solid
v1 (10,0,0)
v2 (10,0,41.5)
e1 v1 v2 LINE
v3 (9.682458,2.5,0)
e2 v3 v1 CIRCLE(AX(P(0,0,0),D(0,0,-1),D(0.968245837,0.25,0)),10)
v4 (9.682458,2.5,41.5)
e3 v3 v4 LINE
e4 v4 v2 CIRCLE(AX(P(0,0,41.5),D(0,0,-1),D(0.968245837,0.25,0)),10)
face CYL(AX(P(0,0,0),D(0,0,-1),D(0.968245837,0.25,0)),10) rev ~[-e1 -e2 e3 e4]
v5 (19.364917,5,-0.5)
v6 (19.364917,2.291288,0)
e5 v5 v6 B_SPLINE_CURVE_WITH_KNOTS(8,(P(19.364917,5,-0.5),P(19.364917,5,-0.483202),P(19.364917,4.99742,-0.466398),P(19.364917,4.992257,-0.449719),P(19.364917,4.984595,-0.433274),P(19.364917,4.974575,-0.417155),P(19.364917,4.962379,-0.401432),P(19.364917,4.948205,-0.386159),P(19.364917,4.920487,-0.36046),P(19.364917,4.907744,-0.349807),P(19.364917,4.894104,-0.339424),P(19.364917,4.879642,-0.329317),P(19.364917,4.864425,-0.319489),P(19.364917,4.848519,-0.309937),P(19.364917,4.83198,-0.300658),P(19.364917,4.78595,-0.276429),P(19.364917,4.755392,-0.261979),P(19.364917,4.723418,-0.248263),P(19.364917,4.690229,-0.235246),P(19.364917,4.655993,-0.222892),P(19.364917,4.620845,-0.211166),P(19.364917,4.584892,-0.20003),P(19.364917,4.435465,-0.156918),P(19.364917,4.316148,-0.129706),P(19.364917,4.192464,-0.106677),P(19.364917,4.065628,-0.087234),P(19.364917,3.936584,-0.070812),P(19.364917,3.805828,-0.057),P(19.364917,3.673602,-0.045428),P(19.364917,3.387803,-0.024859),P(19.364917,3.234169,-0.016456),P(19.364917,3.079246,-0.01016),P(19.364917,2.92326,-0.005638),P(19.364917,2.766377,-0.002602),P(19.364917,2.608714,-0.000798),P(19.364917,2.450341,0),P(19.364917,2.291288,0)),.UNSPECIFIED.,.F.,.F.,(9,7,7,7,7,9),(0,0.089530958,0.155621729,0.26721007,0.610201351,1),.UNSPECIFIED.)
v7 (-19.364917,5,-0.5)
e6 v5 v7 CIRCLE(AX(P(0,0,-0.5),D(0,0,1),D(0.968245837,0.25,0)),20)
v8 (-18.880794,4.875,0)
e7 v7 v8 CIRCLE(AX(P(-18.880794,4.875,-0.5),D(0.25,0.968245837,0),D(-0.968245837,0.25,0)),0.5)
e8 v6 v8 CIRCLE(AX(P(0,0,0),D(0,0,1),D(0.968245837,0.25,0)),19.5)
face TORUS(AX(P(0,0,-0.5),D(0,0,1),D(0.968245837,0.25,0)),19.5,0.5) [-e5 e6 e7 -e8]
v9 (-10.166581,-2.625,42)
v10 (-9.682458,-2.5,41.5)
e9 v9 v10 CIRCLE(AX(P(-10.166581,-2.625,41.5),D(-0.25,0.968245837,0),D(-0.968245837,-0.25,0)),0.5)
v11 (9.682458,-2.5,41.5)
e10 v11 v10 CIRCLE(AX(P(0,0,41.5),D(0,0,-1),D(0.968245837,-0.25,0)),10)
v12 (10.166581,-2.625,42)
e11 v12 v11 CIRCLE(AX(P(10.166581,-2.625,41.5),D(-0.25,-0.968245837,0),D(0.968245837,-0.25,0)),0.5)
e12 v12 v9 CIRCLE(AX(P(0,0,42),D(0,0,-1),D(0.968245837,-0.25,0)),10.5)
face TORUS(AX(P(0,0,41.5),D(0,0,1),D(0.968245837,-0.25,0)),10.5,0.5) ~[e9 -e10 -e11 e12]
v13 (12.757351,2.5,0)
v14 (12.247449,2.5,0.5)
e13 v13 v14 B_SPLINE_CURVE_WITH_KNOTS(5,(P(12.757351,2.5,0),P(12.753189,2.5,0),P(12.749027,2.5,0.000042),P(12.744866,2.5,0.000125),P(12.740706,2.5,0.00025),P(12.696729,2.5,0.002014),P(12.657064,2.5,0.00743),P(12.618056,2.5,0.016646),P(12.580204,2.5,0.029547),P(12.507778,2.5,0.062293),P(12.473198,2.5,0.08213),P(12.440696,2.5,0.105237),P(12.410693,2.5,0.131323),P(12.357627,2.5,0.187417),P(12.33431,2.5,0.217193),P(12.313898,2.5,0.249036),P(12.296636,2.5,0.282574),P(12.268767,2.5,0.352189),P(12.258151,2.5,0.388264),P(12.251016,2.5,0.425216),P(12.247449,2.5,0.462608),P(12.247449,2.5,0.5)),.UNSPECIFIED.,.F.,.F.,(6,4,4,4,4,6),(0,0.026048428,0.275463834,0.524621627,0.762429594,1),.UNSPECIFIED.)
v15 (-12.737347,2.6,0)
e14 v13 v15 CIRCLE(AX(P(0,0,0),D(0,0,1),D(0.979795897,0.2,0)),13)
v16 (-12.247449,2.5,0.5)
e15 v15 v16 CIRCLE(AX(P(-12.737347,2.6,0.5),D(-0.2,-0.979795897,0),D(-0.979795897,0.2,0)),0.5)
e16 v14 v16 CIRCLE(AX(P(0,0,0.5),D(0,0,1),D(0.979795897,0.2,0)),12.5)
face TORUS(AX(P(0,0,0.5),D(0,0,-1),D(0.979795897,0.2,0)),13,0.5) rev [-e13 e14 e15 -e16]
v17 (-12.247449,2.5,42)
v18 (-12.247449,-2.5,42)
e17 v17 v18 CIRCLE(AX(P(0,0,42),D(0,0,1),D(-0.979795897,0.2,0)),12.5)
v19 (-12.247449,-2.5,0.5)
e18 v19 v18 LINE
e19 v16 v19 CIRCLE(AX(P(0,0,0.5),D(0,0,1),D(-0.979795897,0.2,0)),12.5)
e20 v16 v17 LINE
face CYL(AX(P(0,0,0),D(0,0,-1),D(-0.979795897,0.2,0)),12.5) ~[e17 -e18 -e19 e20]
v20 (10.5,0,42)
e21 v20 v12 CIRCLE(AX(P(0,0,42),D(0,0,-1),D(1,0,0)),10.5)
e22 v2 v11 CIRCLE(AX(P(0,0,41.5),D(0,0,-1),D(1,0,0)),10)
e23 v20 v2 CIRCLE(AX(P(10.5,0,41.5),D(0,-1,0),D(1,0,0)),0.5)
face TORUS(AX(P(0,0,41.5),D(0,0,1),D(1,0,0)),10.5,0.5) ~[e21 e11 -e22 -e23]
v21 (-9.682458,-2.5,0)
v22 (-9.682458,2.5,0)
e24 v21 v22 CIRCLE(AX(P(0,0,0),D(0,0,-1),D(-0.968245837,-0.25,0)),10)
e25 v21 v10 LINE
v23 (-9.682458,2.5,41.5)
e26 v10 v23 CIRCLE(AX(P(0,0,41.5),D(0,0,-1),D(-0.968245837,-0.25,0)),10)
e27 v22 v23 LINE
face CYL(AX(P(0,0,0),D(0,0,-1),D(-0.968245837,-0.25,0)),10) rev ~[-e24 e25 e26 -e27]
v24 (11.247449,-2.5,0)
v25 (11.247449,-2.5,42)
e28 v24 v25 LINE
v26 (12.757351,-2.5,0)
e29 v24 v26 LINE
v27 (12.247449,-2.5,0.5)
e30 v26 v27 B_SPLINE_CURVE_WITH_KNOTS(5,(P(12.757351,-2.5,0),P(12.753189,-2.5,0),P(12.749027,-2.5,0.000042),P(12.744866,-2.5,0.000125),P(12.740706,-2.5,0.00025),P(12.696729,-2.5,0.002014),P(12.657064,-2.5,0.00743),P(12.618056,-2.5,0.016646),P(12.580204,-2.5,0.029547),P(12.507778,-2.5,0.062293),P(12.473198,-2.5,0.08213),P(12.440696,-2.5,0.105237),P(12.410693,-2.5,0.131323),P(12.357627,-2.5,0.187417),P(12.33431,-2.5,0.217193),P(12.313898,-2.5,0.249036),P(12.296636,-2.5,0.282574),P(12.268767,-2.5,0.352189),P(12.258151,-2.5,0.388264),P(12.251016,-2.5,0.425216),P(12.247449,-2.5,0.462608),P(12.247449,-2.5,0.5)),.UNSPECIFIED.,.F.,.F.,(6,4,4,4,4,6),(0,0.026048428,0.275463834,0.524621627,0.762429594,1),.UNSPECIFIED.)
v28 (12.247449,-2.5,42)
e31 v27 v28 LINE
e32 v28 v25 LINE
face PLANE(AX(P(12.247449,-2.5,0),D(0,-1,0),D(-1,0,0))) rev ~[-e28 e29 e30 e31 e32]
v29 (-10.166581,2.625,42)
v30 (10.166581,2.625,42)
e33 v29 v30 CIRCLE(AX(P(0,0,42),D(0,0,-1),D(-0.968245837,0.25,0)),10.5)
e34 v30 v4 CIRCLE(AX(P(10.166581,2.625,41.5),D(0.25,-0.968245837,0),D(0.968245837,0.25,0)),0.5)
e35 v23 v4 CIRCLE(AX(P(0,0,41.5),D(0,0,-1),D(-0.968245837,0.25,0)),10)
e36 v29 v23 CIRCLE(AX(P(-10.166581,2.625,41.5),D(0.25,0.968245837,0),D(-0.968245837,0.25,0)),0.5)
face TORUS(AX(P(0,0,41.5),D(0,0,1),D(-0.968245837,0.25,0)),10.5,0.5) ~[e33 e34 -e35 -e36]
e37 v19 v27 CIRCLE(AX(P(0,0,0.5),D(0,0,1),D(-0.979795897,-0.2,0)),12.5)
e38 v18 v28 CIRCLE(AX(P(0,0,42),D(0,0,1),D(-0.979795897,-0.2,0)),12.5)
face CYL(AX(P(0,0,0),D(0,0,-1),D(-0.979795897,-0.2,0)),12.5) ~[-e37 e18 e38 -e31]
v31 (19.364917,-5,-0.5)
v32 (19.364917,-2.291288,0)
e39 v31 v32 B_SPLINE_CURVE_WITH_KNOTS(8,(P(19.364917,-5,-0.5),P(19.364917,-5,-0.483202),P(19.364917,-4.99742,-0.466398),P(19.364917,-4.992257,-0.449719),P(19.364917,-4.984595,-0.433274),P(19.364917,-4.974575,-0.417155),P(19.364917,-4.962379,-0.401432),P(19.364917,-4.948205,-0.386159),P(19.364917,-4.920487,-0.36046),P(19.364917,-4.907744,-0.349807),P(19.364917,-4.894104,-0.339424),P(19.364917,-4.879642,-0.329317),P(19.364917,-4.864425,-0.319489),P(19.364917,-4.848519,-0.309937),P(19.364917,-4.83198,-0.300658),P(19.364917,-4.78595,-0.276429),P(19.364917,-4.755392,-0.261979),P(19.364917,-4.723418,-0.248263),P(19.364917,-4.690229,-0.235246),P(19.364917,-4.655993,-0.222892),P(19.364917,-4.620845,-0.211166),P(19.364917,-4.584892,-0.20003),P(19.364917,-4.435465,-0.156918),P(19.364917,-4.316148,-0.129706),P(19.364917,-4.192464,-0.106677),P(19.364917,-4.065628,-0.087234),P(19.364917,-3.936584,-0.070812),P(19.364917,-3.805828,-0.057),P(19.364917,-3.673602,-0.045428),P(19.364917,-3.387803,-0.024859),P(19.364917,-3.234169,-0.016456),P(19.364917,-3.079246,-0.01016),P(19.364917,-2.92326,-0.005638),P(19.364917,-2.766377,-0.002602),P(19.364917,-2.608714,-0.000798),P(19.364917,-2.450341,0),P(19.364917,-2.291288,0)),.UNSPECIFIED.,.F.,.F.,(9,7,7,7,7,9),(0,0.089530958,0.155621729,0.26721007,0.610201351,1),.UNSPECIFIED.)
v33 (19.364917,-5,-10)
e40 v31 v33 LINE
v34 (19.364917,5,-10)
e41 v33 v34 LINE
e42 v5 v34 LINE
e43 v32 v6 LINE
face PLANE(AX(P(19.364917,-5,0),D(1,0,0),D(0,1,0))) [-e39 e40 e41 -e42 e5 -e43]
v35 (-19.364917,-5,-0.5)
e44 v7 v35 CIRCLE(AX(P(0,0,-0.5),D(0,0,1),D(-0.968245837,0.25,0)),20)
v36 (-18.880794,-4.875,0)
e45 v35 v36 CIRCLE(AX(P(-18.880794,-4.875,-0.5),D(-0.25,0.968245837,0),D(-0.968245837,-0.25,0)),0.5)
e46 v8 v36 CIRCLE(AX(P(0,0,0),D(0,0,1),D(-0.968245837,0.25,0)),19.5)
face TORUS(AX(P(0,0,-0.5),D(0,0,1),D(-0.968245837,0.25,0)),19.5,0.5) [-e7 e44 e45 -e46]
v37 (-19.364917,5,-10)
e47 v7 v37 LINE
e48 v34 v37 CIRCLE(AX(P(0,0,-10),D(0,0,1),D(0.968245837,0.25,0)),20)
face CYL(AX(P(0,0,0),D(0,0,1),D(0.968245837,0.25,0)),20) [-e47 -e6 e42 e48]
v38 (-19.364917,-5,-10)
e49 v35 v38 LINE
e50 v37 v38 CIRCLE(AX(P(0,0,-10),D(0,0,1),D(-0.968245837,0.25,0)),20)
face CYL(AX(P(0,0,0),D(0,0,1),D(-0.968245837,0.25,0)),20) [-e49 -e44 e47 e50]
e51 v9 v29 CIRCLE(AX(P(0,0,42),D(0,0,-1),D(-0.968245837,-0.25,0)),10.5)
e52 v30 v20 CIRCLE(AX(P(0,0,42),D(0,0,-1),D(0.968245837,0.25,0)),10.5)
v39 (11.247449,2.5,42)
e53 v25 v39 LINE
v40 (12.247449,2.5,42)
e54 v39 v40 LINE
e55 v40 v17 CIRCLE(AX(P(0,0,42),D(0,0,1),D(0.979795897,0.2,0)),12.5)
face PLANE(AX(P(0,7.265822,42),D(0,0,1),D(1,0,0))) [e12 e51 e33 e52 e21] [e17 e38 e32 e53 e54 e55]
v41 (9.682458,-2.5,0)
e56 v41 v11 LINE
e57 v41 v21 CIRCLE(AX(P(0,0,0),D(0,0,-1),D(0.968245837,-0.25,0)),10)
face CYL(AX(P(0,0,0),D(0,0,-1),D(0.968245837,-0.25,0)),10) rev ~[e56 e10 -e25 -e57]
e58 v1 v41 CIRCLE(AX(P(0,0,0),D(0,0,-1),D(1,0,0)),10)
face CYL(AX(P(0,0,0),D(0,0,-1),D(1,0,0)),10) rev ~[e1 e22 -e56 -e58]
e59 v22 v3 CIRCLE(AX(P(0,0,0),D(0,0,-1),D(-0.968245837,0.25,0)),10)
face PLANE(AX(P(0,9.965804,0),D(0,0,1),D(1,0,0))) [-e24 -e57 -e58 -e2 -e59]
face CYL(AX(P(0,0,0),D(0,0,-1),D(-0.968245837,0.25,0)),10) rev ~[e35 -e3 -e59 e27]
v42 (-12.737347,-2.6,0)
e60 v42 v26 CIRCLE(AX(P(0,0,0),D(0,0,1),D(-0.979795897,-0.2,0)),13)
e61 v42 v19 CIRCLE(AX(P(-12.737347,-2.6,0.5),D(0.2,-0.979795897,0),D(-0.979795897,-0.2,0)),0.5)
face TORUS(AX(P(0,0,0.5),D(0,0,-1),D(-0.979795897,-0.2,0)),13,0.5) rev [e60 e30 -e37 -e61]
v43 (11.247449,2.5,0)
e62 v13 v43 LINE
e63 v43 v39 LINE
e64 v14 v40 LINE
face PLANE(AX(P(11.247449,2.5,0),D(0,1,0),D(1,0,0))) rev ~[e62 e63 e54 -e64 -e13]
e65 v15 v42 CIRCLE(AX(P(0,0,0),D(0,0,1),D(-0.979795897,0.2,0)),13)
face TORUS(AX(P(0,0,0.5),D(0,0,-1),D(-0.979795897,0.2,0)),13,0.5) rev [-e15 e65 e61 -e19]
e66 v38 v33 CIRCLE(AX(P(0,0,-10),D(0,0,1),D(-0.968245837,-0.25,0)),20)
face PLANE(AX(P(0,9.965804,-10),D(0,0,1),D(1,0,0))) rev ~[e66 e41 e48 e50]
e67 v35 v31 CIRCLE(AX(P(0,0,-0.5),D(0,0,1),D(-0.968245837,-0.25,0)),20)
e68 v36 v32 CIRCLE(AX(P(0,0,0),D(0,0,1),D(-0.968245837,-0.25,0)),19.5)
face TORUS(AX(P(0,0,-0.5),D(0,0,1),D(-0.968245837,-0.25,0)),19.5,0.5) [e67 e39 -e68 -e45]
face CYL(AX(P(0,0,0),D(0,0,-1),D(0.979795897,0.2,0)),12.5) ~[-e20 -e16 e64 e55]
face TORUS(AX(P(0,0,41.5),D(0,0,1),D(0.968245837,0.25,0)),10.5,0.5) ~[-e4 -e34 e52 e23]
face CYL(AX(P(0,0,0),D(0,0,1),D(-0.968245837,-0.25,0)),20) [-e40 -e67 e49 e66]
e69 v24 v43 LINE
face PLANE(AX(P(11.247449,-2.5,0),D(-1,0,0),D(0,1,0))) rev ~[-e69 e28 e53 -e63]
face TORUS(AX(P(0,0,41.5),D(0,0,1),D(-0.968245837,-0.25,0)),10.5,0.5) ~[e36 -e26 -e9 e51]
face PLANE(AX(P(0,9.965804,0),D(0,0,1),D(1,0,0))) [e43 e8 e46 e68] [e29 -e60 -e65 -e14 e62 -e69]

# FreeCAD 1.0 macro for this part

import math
import FreeCAD as App
import Part
import Sketcher
from FreeCAD import Vector


def edges_at(feature, points):
    """Names of the edges that pass closest to the given points."""
    edges = feature.Shape.Edges
    near = lambda p: min(range(len(edges)), key=lambda i: edges[i].distToShape(Part.Vertex(*p))[0])
    return sorted({f"Edge{near(p) + 1}" for p in points})

doc = App.newDocument("Part")
body = doc.addObject("PartDesign::Body", "Body")

sketch1 = body.newObject("Sketcher::SketchObject", "Sketch")
sketch1.AttachmentSupport = (doc.getObject("XY_Plane"), [""])
sketch1.MapMode = "FlatFace"
sketch1.addGeometry([
    Part.ArcOfCircle(Part.Circle(Vector(0, 0, 0), Vector(0, 0, 1), 20), math.radians(14.477512), math.radians(165.522488)),
    Part.ArcOfCircle(Part.Circle(Vector(0, 0, 0), Vector(0, 0, 1), 20), math.radians(165.522488), math.radians(194.477512)),
    Part.ArcOfCircle(Part.Circle(Vector(0, 0, 0), Vector(0, 0, 1), 20), math.radians(-165.522488), math.radians(-14.477512)),
    Part.LineSegment(Vector(19.364917, -5, 0), Vector(19.364917, 5, 0)),
], False)
sketch1.addConstraint([
    Sketcher.Constraint("Tangent", 0, 2, 1, 1),
    Sketcher.Constraint("Tangent", 1, 2, 2, 1),
    Sketcher.Constraint("Coincident", 2, 2, 3, 1),
    Sketcher.Constraint("Coincident", 3, 2, 0, 1),
    Sketcher.Constraint("Vertical", 3),
    Sketcher.Constraint("Coincident", 0, 3, -1, 1),
    Sketcher.Constraint("Coincident", 2, 3, -1, 1),
    Sketcher.Constraint("Horizontal", 1, 2, 2, 2),
    Sketcher.Constraint("Horizontal", 0, 2, 3, 2),
    Sketcher.Constraint("Radius", 0, 20.0),
    Sketcher.Constraint("DistanceY", 3, 1, 3, 2, 10.0),
])
pad1 = body.newObject("PartDesign::Pad", "Pad")
pad1.Profile = sketch1
pad1.Length = 10
pad1.Reversed = True

sketch2 = body.newObject("Sketcher::SketchObject", "Sketch001")
sketch2.AttachmentSupport = (doc.getObject("XY_Plane"), [""])
sketch2.MapMode = "FlatFace"
sketch2.addGeometry([
    Part.ArcOfCircle(Part.Circle(Vector(0, 0, 0), Vector(0, 0, 1), 12.5), math.radians(11.536959), math.radians(168.463041)),
    Part.ArcOfCircle(Part.Circle(Vector(0, 0, 0), Vector(0, 0, 1), 12.5), math.radians(168.463041), math.radians(191.536959)),
    Part.ArcOfCircle(Part.Circle(Vector(0, 0, 0), Vector(0, 0, 1), 12.5), math.radians(-168.463041), math.radians(-11.536959)),
    Part.LineSegment(Vector(12.247449, -2.5, 0), Vector(11.247449, -2.5, 0)),
    Part.LineSegment(Vector(11.247449, -2.5, 0), Vector(11.247449, 2.5, 0)),
    Part.LineSegment(Vector(11.247449, 2.5, 0), Vector(12.247449, 2.5, 0)),
    Part.ArcOfCircle(Part.Circle(Vector(0, 0, 0), Vector(0, 0, 1), 10), math.radians(14.477512), math.radians(165.522488)),
    Part.ArcOfCircle(Part.Circle(Vector(0, 0, 0), Vector(0, 0, 1), 10), math.radians(0), math.radians(14.477512)),
    Part.ArcOfCircle(Part.Circle(Vector(0, 0, 0), Vector(0, 0, 1), 10), math.radians(-14.477512), math.radians(0)),
    Part.ArcOfCircle(Part.Circle(Vector(0, 0, 0), Vector(0, 0, 1), 10), math.radians(-165.522488), math.radians(-14.477512)),
    Part.ArcOfCircle(Part.Circle(Vector(0, 0, 0), Vector(0, 0, 1), 10), math.radians(165.522488), math.radians(194.477512)),
], False)
sketch2.addConstraint([
    Sketcher.Constraint("Tangent", 0, 2, 1, 1),
    Sketcher.Constraint("Tangent", 1, 2, 2, 1),
    Sketcher.Constraint("Coincident", 2, 2, 3, 1),
    Sketcher.Constraint("Coincident", 3, 2, 4, 1),
    Sketcher.Constraint("Coincident", 4, 2, 5, 1),
    Sketcher.Constraint("Coincident", 5, 2, 0, 1),
    Sketcher.Constraint("Tangent", 6, 1, 7, 2),
    Sketcher.Constraint("Tangent", 7, 1, 8, 2),
    Sketcher.Constraint("Tangent", 8, 1, 9, 2),
    Sketcher.Constraint("Tangent", 9, 1, 10, 2),
    Sketcher.Constraint("Tangent", 10, 1, 6, 2),
    Sketcher.Constraint("Horizontal", 3),
    Sketcher.Constraint("Vertical", 4),
    Sketcher.Constraint("Horizontal", 5),
    Sketcher.Constraint("Coincident", 0, 3, -1, 1),
    Sketcher.Constraint("Coincident", 2, 3, -1, 1),
    Sketcher.Constraint("Coincident", 6, 3, -1, 1),
    Sketcher.Constraint("Coincident", 8, 3, -1, 1),
    Sketcher.Constraint("PointOnObject", 7, 1, -1),
    Sketcher.Constraint("Horizontal", 1, 2, 2, 2),
    Sketcher.Constraint("Horizontal", 0, 2, 4, 2),
    Sketcher.Constraint("Horizontal", 5, 2, 6, 1),
    Sketcher.Constraint("Horizontal", 3, 2, 8, 1),
    Sketcher.Constraint("Horizontal", 8, 1, 9, 1),
    Sketcher.Constraint("Horizontal", 6, 1, 10, 1),
    Sketcher.Constraint("Vertical", 0, 2, 1, 2),
    Sketcher.Constraint("Radius", 6, 10.0),
    Sketcher.Constraint("Radius", 0, 12.5),
    Sketcher.Constraint("DistanceX", 3, 2, 3, 1, 1.0),
    Sketcher.Constraint("DistanceY", 4, 1, 4, 2, 5.0),
])
pad2 = body.newObject("PartDesign::Pad", "Pad001")
pad2.Profile = sketch2
pad2.Length = 42
doc.recompute()

fillet = body.newObject("PartDesign::Fillet", "Fillet")
fillet.Base = (pad2, edges_at(pad2, [(0, 10, 42), (-12.5, 0, 0), (-20, 0, 0)]))
fillet.Radius = 0.5

doc.recompute()
